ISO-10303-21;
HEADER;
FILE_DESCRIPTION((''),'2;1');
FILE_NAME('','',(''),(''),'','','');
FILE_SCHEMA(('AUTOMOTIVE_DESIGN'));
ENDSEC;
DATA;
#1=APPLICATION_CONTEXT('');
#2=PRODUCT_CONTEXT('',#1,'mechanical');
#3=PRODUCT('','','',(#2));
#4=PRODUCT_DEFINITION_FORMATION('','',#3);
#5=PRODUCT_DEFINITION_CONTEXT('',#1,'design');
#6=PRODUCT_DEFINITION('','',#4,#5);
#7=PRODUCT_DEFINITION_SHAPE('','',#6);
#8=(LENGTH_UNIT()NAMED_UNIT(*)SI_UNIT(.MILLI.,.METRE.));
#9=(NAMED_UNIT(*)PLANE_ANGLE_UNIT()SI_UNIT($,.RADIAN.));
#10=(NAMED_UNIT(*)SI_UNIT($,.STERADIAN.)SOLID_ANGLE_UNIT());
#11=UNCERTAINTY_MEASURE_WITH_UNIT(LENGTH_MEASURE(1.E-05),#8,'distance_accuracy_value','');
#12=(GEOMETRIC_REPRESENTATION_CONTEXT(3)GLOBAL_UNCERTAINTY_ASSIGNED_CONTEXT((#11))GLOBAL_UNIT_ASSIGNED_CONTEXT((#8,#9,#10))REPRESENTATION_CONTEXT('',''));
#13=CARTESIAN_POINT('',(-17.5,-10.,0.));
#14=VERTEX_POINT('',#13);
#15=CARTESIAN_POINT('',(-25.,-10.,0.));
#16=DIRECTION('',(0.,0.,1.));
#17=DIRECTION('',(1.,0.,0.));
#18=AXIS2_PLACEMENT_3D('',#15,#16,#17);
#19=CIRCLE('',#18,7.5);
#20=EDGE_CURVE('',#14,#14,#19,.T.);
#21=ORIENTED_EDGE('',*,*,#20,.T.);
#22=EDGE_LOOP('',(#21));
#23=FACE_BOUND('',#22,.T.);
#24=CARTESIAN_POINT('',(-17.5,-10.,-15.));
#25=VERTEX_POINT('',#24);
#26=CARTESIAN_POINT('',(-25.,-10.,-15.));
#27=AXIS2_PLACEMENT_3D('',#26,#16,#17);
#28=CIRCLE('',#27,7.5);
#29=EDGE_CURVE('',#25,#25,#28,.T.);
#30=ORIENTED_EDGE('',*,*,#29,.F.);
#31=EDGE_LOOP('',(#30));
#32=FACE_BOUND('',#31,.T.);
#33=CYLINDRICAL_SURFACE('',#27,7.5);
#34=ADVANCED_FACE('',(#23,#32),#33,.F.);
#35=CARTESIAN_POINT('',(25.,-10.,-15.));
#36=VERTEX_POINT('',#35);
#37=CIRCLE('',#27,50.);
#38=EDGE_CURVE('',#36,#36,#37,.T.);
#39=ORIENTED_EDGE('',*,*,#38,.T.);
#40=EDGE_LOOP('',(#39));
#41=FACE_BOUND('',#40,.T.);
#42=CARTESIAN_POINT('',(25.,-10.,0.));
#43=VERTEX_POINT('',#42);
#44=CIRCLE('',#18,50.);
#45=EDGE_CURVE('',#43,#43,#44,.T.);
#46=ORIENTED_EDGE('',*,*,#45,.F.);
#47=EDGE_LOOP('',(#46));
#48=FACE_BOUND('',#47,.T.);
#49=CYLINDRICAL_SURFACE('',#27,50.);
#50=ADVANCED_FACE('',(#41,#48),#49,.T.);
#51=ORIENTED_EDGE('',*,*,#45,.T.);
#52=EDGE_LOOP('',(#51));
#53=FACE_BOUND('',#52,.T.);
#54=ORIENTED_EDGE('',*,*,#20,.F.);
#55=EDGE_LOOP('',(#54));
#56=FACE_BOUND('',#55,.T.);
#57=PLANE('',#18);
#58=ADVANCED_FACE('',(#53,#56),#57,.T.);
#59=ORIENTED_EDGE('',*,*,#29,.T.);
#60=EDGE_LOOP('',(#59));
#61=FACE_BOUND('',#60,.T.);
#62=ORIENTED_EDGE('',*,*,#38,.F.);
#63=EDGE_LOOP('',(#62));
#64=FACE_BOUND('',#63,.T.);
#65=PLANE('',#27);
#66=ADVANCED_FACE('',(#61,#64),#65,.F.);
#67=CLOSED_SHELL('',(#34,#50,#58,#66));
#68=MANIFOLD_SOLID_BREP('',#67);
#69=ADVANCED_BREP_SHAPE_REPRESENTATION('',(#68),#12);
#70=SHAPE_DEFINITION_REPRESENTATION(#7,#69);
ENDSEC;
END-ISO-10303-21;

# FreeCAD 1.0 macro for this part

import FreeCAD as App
import Part
import Sketcher

V = App.Vector

doc = App.newDocument("Part")
params = doc.addObject("Spreadsheet::Sheet", "Params")
for row, (alias, value) in enumerate([
    ("sketch1_diameter", "100 mm"),
    ("sketch1_diameter2", "15 mm"),
    ("pad1_length", "15 mm"),
], start=1):
    params.set(f"A{row}", alias)
    params.set(f"B{row}", "=" + value)
    params.setAlias(f"B{row}", alias)

body = doc.addObject("PartDesign::Body", "Body")

# Sketch on XY plane
sketch1 = body.newObject("Sketcher::SketchObject", "Sketch")
sketch1.AttachmentSupport = (doc.getObject("XY_Plane"), [""])
sketch1.MapMode = "FlatFace"
sketch1.addGeometry([
    Part.Circle(V(-25, -10, 0), V(0, 0, 1), 50),
    Part.Circle(V(-25, -10, 0), V(0, 0, 1), 8),
], False)
sketch1.addConstraint([
    Sketcher.Constraint("Coincident", 1, 3, 0, 3),
    Sketcher.Constraint("Diameter", 0, 100.0),
    Sketcher.Constraint("Diameter", 1, 15.0),
    Sketcher.Constraint("DistanceX", 0, 3, -1, 1, 25.0),
    Sketcher.Constraint("DistanceY", 0, 3, -1, 1, 10.0),
])
sketch1.setExpression("Constraints[1]", "Params.sketch1_diameter")
sketch1.setExpression("Constraints[2]", "Params.sketch1_diameter2")
pad1 = body.newObject("PartDesign::Pad", "Pad")
pad1.Profile = sketch1
pad1.setExpression("Length", "Params.pad1_length")
pad1.Reversed = True

doc.recompute()
